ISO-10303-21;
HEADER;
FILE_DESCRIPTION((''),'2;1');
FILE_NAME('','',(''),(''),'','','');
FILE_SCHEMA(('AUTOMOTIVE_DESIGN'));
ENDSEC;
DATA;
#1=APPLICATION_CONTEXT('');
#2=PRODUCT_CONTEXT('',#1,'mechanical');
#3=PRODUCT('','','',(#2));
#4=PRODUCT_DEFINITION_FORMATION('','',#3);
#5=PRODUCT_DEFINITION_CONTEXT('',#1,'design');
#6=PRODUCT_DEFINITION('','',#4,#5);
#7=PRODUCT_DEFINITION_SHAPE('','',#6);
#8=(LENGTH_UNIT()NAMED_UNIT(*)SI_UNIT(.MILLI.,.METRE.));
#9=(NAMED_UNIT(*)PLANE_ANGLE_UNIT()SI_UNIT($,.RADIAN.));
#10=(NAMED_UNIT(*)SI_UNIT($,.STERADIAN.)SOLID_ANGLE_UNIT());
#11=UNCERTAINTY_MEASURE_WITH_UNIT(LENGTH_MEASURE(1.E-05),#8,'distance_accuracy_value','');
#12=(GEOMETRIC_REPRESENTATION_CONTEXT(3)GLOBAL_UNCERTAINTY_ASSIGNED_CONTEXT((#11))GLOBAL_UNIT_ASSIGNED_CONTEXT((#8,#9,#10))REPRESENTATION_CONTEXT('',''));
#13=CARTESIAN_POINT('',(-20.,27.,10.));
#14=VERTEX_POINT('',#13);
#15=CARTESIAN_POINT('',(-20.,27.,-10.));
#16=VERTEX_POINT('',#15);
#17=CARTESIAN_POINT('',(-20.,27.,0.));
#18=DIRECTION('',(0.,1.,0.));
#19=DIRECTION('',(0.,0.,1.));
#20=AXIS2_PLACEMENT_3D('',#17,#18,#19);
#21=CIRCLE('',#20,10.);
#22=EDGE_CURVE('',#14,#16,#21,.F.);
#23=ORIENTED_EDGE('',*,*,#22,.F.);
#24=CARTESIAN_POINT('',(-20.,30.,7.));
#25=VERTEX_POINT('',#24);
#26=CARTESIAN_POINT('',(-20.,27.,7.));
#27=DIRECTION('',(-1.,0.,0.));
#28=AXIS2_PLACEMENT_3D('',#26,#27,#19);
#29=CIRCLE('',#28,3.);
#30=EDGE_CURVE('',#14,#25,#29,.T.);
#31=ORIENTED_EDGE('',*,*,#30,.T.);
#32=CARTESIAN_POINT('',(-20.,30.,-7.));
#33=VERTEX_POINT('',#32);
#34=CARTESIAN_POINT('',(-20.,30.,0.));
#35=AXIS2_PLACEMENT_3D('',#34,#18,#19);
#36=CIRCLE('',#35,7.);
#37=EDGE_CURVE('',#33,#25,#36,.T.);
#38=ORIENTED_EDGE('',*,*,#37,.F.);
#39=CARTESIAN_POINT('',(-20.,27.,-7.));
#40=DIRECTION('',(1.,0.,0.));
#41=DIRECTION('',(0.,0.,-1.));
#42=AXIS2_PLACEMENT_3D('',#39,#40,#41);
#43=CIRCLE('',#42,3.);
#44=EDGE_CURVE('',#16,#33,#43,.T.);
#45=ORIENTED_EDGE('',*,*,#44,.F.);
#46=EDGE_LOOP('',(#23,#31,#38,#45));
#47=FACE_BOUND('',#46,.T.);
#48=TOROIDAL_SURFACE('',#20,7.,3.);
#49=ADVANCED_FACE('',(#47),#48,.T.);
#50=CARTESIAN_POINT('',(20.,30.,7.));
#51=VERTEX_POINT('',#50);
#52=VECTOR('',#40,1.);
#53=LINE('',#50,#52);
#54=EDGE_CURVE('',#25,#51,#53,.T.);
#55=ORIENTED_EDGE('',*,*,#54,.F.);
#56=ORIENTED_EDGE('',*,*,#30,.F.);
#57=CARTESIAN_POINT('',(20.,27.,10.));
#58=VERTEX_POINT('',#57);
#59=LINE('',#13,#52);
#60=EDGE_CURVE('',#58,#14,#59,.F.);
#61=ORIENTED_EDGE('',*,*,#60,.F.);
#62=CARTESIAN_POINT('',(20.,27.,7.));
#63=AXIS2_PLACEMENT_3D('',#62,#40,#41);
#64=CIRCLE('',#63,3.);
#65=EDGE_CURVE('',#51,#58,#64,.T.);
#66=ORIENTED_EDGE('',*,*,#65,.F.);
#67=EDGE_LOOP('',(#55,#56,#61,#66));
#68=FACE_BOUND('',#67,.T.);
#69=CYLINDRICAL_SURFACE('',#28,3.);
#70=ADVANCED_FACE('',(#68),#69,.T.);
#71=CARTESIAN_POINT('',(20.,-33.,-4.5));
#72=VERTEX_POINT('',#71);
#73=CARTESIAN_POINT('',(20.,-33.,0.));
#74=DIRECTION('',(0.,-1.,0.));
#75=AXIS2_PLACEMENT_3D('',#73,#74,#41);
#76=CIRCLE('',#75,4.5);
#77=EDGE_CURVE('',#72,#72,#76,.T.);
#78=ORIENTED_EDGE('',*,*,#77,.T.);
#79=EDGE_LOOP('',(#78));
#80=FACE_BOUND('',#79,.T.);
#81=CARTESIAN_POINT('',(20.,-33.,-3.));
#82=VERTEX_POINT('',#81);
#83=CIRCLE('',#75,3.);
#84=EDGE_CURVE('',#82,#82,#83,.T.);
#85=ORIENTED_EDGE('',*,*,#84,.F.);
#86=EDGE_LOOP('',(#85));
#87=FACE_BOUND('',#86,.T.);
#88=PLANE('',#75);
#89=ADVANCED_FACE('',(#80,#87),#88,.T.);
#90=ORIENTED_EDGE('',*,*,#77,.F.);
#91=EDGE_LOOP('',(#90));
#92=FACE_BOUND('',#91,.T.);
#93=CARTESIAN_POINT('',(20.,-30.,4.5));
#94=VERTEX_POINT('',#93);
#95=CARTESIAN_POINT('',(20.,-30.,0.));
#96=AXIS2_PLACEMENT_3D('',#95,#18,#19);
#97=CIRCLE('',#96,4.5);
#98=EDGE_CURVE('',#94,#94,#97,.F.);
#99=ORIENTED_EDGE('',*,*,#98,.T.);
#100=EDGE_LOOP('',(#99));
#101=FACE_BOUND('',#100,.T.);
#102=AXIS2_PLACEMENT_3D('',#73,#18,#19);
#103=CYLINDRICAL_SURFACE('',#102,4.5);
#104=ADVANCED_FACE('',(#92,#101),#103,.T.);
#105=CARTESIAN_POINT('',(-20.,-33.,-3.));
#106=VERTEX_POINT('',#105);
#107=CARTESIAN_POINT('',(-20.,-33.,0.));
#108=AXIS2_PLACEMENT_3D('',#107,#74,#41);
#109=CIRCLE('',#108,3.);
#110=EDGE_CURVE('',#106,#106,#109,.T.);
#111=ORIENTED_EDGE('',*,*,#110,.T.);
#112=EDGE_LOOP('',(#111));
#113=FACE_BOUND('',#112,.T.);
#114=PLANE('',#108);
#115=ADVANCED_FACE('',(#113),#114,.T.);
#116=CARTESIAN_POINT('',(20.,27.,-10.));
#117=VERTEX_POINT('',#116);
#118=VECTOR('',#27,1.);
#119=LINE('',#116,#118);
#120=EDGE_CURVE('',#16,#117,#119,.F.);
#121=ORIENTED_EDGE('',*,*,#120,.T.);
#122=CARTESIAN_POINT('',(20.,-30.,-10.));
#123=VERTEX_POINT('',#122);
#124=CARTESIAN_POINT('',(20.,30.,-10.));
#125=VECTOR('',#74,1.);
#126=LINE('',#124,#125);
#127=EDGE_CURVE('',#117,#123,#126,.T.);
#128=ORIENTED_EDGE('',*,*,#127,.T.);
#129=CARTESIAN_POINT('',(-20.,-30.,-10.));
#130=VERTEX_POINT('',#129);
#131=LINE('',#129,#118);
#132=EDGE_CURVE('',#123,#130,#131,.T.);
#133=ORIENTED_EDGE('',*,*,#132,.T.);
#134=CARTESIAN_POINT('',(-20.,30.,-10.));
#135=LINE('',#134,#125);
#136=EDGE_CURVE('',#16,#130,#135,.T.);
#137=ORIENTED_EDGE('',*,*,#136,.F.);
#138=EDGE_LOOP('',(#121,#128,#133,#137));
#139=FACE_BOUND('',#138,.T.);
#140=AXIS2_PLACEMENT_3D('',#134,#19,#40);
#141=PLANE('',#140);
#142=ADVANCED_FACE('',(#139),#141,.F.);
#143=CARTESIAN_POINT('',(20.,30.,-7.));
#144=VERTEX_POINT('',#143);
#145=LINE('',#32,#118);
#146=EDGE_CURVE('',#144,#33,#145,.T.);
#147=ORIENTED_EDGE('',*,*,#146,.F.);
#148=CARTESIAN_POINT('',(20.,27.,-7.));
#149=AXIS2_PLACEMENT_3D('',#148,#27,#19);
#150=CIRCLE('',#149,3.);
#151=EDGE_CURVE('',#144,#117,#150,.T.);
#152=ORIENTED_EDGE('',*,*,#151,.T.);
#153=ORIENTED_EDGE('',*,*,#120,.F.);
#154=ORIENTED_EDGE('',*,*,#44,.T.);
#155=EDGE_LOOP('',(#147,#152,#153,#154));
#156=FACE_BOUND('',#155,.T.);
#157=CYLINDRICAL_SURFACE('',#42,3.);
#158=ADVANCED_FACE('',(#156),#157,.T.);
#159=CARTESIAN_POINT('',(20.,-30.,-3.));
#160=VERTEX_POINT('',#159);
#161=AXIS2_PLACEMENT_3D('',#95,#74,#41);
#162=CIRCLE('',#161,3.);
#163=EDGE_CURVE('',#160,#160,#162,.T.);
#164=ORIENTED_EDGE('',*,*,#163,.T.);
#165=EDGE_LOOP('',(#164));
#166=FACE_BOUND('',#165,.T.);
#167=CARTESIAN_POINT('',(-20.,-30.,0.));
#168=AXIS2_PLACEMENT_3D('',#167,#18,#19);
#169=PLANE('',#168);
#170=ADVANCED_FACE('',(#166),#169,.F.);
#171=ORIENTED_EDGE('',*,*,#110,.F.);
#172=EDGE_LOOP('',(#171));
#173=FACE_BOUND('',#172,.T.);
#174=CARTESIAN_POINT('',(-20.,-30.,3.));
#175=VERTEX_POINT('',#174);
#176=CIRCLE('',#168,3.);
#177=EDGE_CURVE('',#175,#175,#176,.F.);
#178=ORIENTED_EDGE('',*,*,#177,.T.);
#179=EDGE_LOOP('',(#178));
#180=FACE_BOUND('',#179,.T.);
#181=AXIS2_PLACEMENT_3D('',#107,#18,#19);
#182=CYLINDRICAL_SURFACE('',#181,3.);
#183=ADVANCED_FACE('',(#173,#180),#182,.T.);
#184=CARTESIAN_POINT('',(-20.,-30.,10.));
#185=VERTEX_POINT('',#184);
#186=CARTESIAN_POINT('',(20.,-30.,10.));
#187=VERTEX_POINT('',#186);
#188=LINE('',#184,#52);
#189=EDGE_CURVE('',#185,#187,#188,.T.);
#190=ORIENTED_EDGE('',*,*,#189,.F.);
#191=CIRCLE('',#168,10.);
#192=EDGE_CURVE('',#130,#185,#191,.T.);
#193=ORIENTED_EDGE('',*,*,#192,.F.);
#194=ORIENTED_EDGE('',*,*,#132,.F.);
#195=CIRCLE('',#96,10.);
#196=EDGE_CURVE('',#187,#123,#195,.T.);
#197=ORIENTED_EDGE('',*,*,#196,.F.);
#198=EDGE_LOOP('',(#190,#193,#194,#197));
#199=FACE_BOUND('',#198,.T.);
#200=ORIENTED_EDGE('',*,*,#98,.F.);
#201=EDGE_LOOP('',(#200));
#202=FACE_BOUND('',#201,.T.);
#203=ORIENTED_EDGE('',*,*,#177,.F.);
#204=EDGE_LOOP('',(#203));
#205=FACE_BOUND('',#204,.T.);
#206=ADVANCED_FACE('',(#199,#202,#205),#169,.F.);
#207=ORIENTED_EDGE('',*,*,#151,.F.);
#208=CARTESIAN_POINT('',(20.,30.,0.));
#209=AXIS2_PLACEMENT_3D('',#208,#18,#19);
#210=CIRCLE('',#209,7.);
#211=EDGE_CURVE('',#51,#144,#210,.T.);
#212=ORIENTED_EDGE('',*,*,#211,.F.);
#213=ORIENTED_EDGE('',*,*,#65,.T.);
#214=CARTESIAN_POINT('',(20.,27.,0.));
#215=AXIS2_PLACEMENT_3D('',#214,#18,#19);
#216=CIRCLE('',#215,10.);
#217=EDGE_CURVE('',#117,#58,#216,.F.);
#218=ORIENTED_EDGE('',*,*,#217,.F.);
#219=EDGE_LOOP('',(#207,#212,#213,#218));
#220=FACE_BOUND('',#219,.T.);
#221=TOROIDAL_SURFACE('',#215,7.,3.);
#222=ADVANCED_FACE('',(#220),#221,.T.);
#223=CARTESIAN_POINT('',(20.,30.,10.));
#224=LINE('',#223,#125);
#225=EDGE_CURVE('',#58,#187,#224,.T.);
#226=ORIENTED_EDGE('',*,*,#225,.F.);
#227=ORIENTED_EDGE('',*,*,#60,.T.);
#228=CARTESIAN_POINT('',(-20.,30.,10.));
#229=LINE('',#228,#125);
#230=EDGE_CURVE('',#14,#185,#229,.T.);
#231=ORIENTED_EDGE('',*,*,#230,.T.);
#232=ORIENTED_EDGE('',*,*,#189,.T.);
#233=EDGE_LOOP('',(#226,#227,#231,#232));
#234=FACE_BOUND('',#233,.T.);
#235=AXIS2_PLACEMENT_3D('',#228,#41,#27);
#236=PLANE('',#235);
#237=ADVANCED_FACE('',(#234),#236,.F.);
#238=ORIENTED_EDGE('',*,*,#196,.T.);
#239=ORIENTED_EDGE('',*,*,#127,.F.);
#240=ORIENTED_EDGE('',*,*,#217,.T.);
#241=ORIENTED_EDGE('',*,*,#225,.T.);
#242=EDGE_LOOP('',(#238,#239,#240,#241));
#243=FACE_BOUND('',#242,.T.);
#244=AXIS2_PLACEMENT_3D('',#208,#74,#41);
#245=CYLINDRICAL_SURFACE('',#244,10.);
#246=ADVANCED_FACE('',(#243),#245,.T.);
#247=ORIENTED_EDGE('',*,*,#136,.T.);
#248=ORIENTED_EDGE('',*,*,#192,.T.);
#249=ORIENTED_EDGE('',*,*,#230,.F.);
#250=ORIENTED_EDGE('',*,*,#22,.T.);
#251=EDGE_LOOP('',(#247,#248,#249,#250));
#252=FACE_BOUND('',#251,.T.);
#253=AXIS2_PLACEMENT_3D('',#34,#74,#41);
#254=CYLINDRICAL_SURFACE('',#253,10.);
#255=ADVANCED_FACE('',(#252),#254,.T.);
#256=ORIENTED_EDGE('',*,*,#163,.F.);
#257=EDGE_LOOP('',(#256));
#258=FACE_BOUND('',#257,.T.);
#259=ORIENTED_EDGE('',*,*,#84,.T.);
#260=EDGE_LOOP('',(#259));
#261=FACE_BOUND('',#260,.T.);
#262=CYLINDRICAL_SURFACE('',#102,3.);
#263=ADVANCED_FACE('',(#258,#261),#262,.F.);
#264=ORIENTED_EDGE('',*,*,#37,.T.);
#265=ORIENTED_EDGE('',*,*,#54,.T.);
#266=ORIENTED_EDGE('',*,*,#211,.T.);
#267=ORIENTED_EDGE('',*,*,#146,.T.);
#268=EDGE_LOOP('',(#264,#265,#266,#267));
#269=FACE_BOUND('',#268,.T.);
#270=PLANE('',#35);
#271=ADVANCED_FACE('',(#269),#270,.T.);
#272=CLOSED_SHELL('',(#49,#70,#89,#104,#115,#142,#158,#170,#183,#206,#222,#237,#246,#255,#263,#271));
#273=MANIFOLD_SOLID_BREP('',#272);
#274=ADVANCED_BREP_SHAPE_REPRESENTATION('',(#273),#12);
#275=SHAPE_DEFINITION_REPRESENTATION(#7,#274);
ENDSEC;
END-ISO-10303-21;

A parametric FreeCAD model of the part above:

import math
import FreeCAD as App
import Part
import Sketcher

V = App.Vector


def edges_at(feature, points):
    """Names of the edges that pass closest to the given points."""
    edges = feature.Shape.Edges
    near = lambda p: min(range(len(edges)), key=lambda i: edges[i].distToShape(Part.Vertex(*p))[0])
    return sorted({f"Edge{near(p) + 1}" for p in points})

doc = App.newDocument("Part")
body = doc.addObject("PartDesign::Body", "Body")

# Sketch on XZ plane
sketch1 = doc.addObject("Sketcher::SketchObject", "Sketch")
body.addObject(sketch1)
sketch1.AttachmentSupport = (doc.XZ_Plane, [""])
sketch1.MapMode = "FlatFace"
sketch1.addGeometry([
    Part.LineSegment(V(20, -10, 0), V(-20, -10, 0)),
    Part.ArcOfCircle(Part.Circle(V(-20, 0, 0), V(0, 0, 1), 10), math.radians(90), math.radians(270)),
    Part.LineSegment(V(-20, 10, 0), V(20, 10, 0)),
    Part.ArcOfCircle(Part.Circle(V(20, 0, 0), V(0, 0, 1), 10), math.radians(-90), math.radians(90)),
], False)
sketch1.addConstraint([
    Sketcher.Constraint("Tangent", 0, 2, 1, 2),
    Sketcher.Constraint("Tangent", 1, 1, 2, 1),
    Sketcher.Constraint("Tangent", 2, 2, 3, 2),
    Sketcher.Constraint("Tangent", 3, 1, 0, 1),
    Sketcher.Constraint("Horizontal", 0),
    Sketcher.Constraint("Horizontal", 2),
    Sketcher.Constraint("Symmetric", 1, 3, 3, 3, -1, 1),
    Sketcher.Constraint("Radius", 1, 10.0),
    Sketcher.Constraint("DistanceX", 0, 2, 0, 1, 40.0),
])
pad1 = doc.addObject("PartDesign::Pad", "Pad")
body.addObject(pad1)
pad1.Profile = sketch1
pad1.Length = 60
pad1.Midplane = True
doc.recompute()

fillet = doc.addObject("PartDesign::Fillet", "Fillet")
body.addObject(fillet)
fillet.Base = (pad1, edges_at(pad1, [
    (30, 30, 0),
    (0, 30, -10),
    (-30, 30, 0),
    (0, 30, 10),
]))
fillet.Radius = 3

# Sketch on XZ plane
sketch2 = doc.addObject("Sketcher::SketchObject", "Sketch001")
body.addObject(sketch2)
sketch2.AttachmentSupport = (doc.XZ_Plane, [""])
sketch2.MapMode = "FlatFace"
sketch2.AttachmentOffset = App.Placement(V(0, 0, 30), App.Rotation())
sketch2.addGeometry([
    Part.Circle(V(-20, 0, 0), V(0, 0, 1), 3),
    Part.Circle(V(20, 0, 0), V(0, 0, 1), 4.5),
    Part.Circle(V(20, 0, 0), V(0, 0, 1), 3),
], False)
sketch2.addConstraint([
    Sketcher.Constraint("Coincident", 2, 3, 1, 3),
    Sketcher.Constraint("Equal", 0, 2),
    Sketcher.Constraint("Symmetric", 0, 3, 1, 3, -1, 1),
    Sketcher.Constraint("PointOnObject", 0, 3, -1),
    Sketcher.Constraint("Diameter", 0, 6.0),
    Sketcher.Constraint("Diameter", 1, 9.0),
    Sketcher.Constraint("DistanceX", 0, 3, -1, 1, 20.0),
])
pad2 = doc.addObject("PartDesign::Pad", "Pad001")
body.addObject(pad2)
pad2.Profile = sketch2
pad2.Length = 3

doc.recompute()
